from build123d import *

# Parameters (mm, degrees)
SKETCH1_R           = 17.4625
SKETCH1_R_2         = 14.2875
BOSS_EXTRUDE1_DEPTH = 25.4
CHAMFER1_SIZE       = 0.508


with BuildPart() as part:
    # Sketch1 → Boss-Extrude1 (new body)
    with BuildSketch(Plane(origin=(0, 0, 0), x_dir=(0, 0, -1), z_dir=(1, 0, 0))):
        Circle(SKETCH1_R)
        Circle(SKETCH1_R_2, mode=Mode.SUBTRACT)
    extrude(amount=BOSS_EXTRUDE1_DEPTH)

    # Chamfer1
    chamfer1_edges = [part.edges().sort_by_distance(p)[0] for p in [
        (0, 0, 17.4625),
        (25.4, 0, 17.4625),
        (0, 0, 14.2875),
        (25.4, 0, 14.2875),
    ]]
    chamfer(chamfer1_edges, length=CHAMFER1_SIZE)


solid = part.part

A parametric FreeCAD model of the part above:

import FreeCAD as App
import Part
import Sketcher
from FreeCAD import Vector
Q = App.Units.Quantity


def edges_at(feature, points):
    """Names of the edges that pass closest to the given points."""
    edges = feature.Shape.Edges
    near = lambda p: min(range(len(edges)), key=lambda i: edges[i].distToShape(Part.Vertex(*p))[0])
    return sorted({f"Edge{near(p) + 1}" for p in points})

doc = App.newDocument("Part")
body = doc.addObject("PartDesign::Body", "Body")

# Sketch on YZ plane
sketch1 = body.newObject("Sketcher::SketchObject", "Sketch")
sketch1.AttachmentSupport = (doc.getObject("YZ_Plane"), [""])
sketch1.MapMode = "FlatFace"
sketch1.addGeometry([
    Part.Circle(Vector(0, 0, 0), Vector(0, 0, 1), 17.4625),
    Part.Circle(Vector(0, 0, 0), Vector(0, 0, 1), 14.2875),
], False)
sketch1.addConstraint([
    Sketcher.Constraint("Coincident", 0, 3, -1, 1),
    Sketcher.Constraint("Coincident", 1, 3, -1, 1),
    Sketcher.Constraint("Diameter", 0, Q("1.375 in")),
    Sketcher.Constraint("Diameter", 1, Q("1.125 in")),
])
pad1 = body.newObject("PartDesign::Pad", "Pad")
pad1.Profile = sketch1
pad1.Length = Q("1 in")
doc.recompute()

chamfer = body.newObject("PartDesign::Chamfer", "Chamfer")
chamfer.Base = (pad1, edges_at(pad1, [
    (0, 0, 17.462),
    (25.4, 0, 17.462),
    (0, 0, 14.287),
    (25.4, 0, 14.287),
]))
chamfer.Size = Q("0.02 in")

doc.recompute()
